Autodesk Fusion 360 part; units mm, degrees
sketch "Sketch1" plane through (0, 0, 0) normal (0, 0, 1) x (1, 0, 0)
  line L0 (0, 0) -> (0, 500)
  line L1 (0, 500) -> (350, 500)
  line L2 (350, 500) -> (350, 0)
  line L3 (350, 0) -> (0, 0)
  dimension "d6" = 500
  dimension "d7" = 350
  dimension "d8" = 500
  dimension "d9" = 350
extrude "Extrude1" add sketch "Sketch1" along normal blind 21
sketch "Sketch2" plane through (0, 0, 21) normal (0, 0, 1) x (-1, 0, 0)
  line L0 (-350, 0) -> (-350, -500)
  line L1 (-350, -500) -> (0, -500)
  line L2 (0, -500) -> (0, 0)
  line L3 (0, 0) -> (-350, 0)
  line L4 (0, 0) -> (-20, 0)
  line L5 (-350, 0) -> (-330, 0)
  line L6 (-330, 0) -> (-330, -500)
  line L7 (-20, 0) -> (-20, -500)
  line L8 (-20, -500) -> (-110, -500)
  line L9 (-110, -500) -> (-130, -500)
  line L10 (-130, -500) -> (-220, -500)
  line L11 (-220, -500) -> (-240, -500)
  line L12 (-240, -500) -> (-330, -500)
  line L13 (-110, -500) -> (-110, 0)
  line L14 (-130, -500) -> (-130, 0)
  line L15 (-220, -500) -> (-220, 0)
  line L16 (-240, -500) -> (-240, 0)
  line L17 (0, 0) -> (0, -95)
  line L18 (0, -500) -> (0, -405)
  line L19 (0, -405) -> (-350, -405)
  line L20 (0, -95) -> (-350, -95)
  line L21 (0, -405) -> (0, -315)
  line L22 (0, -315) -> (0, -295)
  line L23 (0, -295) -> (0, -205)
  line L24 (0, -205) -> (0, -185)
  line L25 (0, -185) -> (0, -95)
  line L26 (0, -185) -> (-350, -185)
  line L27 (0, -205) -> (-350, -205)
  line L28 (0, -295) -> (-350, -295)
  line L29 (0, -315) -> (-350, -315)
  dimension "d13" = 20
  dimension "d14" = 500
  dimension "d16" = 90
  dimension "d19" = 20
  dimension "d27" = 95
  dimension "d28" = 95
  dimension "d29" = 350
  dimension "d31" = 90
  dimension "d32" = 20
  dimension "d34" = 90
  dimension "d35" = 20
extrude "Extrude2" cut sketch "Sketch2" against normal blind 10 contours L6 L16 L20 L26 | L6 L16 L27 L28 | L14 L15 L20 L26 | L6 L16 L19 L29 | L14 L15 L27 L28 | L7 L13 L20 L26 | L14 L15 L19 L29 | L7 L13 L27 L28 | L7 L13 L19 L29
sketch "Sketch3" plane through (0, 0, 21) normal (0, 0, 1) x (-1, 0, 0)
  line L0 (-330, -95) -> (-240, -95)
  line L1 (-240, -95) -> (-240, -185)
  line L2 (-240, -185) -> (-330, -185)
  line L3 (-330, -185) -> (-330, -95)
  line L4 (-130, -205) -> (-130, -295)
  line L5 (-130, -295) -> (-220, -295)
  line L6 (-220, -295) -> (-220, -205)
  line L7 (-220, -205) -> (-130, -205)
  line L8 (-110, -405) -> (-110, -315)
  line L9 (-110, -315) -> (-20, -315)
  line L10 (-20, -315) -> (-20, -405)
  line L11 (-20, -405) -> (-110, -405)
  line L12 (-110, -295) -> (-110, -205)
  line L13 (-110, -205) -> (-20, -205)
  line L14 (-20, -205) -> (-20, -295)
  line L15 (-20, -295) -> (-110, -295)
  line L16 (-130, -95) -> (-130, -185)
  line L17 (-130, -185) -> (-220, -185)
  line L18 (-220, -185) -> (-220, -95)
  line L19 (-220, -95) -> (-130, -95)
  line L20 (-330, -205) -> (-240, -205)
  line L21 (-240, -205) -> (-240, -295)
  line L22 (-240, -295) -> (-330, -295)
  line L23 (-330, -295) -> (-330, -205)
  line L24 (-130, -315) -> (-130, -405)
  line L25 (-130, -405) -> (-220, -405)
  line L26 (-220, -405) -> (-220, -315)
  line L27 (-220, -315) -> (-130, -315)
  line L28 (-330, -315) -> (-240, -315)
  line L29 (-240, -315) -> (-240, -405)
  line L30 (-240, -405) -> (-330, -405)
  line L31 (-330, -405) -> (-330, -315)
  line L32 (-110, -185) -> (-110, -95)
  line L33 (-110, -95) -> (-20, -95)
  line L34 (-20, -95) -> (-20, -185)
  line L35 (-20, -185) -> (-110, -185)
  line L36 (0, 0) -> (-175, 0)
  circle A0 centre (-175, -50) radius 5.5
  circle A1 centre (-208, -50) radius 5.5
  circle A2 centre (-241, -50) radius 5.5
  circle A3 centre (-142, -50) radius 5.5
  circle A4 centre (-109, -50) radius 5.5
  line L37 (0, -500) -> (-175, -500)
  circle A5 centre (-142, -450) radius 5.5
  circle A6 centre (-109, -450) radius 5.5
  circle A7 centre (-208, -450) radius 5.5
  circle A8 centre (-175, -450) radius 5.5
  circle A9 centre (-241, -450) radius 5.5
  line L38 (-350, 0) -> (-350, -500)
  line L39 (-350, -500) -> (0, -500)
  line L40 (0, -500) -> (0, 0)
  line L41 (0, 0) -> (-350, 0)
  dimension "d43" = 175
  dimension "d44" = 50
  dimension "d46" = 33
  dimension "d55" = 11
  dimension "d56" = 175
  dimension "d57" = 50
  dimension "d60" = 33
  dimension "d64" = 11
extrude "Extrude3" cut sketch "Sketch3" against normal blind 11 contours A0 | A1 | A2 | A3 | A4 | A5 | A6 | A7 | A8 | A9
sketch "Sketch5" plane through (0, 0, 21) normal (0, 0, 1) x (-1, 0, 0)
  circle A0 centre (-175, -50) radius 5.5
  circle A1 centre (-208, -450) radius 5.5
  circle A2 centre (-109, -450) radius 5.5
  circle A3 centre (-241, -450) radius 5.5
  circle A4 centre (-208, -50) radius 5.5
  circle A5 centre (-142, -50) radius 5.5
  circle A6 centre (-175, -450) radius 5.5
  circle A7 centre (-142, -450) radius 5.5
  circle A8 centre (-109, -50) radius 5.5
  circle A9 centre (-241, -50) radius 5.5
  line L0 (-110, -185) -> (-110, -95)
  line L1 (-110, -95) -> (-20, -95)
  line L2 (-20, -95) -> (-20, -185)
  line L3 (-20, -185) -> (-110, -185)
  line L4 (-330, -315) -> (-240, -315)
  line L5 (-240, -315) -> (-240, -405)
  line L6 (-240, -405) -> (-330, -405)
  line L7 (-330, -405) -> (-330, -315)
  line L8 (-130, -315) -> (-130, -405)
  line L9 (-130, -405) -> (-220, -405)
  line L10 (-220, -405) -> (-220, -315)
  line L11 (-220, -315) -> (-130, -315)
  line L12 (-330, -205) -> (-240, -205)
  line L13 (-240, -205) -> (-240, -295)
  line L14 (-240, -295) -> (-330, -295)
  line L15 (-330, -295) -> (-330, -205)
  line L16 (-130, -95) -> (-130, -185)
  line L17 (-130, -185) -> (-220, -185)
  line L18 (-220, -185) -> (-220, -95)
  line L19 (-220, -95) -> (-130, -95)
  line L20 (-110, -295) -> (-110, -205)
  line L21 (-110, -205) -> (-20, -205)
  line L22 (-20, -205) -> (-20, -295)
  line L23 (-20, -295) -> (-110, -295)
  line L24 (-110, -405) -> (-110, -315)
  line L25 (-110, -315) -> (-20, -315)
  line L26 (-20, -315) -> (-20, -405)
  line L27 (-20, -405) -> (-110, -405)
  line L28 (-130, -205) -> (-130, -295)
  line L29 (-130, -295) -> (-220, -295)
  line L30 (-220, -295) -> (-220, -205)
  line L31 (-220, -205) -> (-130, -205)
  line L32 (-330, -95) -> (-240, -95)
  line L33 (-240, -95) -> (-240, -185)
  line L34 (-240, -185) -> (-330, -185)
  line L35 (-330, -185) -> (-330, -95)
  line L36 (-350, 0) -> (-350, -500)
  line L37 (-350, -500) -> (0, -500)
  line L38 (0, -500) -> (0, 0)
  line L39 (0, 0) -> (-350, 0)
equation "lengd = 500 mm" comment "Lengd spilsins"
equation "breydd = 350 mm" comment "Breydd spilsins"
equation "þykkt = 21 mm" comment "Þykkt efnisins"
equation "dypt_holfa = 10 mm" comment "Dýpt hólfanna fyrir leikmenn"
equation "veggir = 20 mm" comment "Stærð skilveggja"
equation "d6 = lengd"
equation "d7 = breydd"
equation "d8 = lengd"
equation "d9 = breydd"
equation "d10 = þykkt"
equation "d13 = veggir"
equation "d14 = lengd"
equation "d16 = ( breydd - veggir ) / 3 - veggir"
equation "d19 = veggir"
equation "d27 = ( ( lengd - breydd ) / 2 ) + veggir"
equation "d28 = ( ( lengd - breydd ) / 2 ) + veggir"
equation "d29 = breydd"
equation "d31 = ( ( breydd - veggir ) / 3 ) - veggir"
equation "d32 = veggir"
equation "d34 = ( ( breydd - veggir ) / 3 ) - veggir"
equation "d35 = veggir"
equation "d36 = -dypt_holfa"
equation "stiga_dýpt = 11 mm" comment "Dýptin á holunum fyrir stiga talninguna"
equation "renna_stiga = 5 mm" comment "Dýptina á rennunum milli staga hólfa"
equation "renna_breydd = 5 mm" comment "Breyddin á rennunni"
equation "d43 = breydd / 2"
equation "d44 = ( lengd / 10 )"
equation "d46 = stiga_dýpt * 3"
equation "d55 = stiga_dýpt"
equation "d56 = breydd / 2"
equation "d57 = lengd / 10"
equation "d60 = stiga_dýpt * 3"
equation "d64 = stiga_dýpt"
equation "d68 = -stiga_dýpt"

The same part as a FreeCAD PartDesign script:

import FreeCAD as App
import Part
import Sketcher

V = App.Vector


def add_polygon(sketch, points):
    """Adds a closed chain of lines whose ends are joined by coincident constraints."""
    first, n = sketch.GeometryCount, len(points)
    for a, b in zip(points, points[1:] + points[:1]):
        sketch.addGeometry(Part.LineSegment(App.Vector(*a, 0), App.Vector(*b, 0)), False)
    for i in range(n):
        sketch.addConstraint(Sketcher.Constraint("Coincident", first + i, 2, first + (i + 1) % n, 1))

doc = App.newDocument("Part")
body = doc.addObject("PartDesign::Body", "Body")

# Sketch on XY plane
sketch1 = body.newObject("Sketcher::SketchObject", "Sketch")
sketch1.AttachmentSupport = (doc.getObject("XY_Plane"), [""])
sketch1.MapMode = "FlatFace"
add_polygon(sketch1, [(0, 500), (0, 0), (350, 0), (350, 500)])  # lines 0-3
sketch1.addConstraint([
    Sketcher.Constraint("Vertical", 0),
    Sketcher.Constraint("Horizontal", 1),
    Sketcher.Constraint("Vertical", 2),
    Sketcher.Constraint("Horizontal", 3),
    Sketcher.Constraint("Coincident", 0, 2, -1, 1),
    Sketcher.Constraint("DistanceX", 1, 1, 1, 2, 350.0),
    Sketcher.Constraint("DistanceY", 0, 2, 0, 1, 500.0),
])
pad1 = body.newObject("PartDesign::Pad", "Pad")
pad1.Profile = sketch1
pad1.Length = 21

# Sketch on XY plane
sketch2 = body.newObject("Sketcher::SketchObject", "Sketch001")
sketch2.AttachmentSupport = (doc.getObject("XY_Plane"), [""])
sketch2.MapMode = "FlatFace"
sketch2.AttachmentOffset = App.Placement(V(0, 0, 21), App.Rotation())
add_polygon(sketch2, [(240, 95), (330, 95), (330, 185), (240, 185)])  # lines 0-3
add_polygon(sketch2, [(240, 205), (330, 205), (330, 295), (240, 295)])  # lines 4-7
add_polygon(sketch2, [(130, 95), (220, 95), (220, 185), (130, 185)])  # lines 8-11
add_polygon(sketch2, [(240, 315), (330, 315), (330, 405), (240, 405)])  # lines 12-15
add_polygon(sketch2, [(130, 205), (220, 205), (220, 295), (130, 295)])  # lines 16-19
add_polygon(sketch2, [(20, 95), (110, 95), (110, 185), (20, 185)])  # lines 20-23
add_polygon(sketch2, [(130, 315), (220, 315), (220, 405), (130, 405)])  # lines 24-27
add_polygon(sketch2, [(20, 205), (110, 205), (110, 295), (20, 295)])  # lines 28-31
add_polygon(sketch2, [(20, 315), (110, 315), (110, 405), (20, 405)])  # lines 32-35
sketch2.addConstraint([
    Sketcher.Constraint("Horizontal", 0),
    Sketcher.Constraint("Vertical", 1),
    Sketcher.Constraint("Horizontal", 2),
    Sketcher.Constraint("Vertical", 3),
    Sketcher.Constraint("Horizontal", 4),
    Sketcher.Constraint("Vertical", 5),
    Sketcher.Constraint("Horizontal", 6),
    Sketcher.Constraint("Vertical", 7),
    Sketcher.Constraint("Horizontal", 8),
    Sketcher.Constraint("Vertical", 9),
    Sketcher.Constraint("Horizontal", 10),
    Sketcher.Constraint("Vertical", 11),
    Sketcher.Constraint("Horizontal", 12),
    Sketcher.Constraint("Vertical", 13),
    Sketcher.Constraint("Horizontal", 14),
    Sketcher.Constraint("Vertical", 15),
    Sketcher.Constraint("Horizontal", 16),
    Sketcher.Constraint("Vertical", 17),
    Sketcher.Constraint("Horizontal", 18),
    Sketcher.Constraint("Vertical", 19),
    Sketcher.Constraint("Horizontal", 20),
    Sketcher.Constraint("Vertical", 21),
    Sketcher.Constraint("Horizontal", 22),
    Sketcher.Constraint("Vertical", 23),
    Sketcher.Constraint("Horizontal", 24),
    Sketcher.Constraint("Vertical", 25),
    Sketcher.Constraint("Horizontal", 26),
    Sketcher.Constraint("Vertical", 27),
    Sketcher.Constraint("Horizontal", 28),
    Sketcher.Constraint("Vertical", 29),
    Sketcher.Constraint("Horizontal", 30),
    Sketcher.Constraint("Vertical", 31),
    Sketcher.Constraint("Horizontal", 32),
    Sketcher.Constraint("Vertical", 33),
    Sketcher.Constraint("Horizontal", 34),
    Sketcher.Constraint("Vertical", 35),
    Sketcher.Constraint("Horizontal", 3, 2, 8, 2),
    Sketcher.Constraint("Horizontal", 2, 2, 9, 2),
    Sketcher.Constraint("Horizontal", 7, 2, 16, 2),
    Sketcher.Constraint("Horizontal", 6, 2, 17, 2),
    Sketcher.Constraint("Horizontal", 11, 2, 20, 2),
    Sketcher.Constraint("Horizontal", 10, 2, 21, 2),
    Sketcher.Constraint("Horizontal", 15, 2, 24, 2),
    Sketcher.Constraint("Horizontal", 14, 2, 25, 2),
    Sketcher.Constraint("Horizontal", 19, 2, 28, 2),
    Sketcher.Constraint("Horizontal", 18, 2, 29, 2),
    Sketcher.Constraint("Horizontal", 27, 2, 32, 2),
    Sketcher.Constraint("Horizontal", 26, 2, 33, 2),
    Sketcher.Constraint("Vertical", 1, 2, 4, 2),
    Sketcher.Constraint("Vertical", 3, 2, 6, 2),
    Sketcher.Constraint("Vertical", 5, 2, 12, 2),
    Sketcher.Constraint("Vertical", 7, 2, 14, 2),
    Sketcher.Constraint("Vertical", 9, 2, 16, 2),
    Sketcher.Constraint("Vertical", 11, 2, 18, 2),
    Sketcher.Constraint("Vertical", 17, 2, 24, 2),
    Sketcher.Constraint("Vertical", 19, 2, 26, 2),
    Sketcher.Constraint("Vertical", 21, 2, 28, 2),
    Sketcher.Constraint("Vertical", 23, 2, 30, 2),
    Sketcher.Constraint("Vertical", 29, 2, 32, 2),
    Sketcher.Constraint("Vertical", 31, 2, 34, 2),
    Sketcher.Constraint("Equal", 6, 8),
    Sketcher.Constraint("Equal", 18, 20),
    Sketcher.Constraint("Equal", 34, 1),
    Sketcher.Constraint("Equal", 3, 5),
    Sketcher.Constraint("Equal", 11, 13),
    Sketcher.Constraint("DistanceX", 0, 1, 0, 2, 90.0),
    Sketcher.Constraint("DistanceY", -1, 1, 0, 2, 95.0),
    Sketcher.Constraint("DistanceX", -1, 1, 22, 2, 20.0),
    Sketcher.Constraint("DistanceY", 1, 2, 4, 2, 20.0),
    Sketcher.Constraint("DistanceX", 8, 2, 3, 2, 20.0),
    Sketcher.Constraint("DistanceY", 5, 2, 12, 2, 20.0),
    Sketcher.Constraint("DistanceX", 20, 2, 11, 2, 20.0),
])
pocket1 = body.newObject("PartDesign::Pocket", "Pocket")
pocket1.Profile = sketch2
pocket1.Length = 10

# Sketch on XY plane
sketch3 = body.newObject("Sketcher::SketchObject", "Sketch002")
sketch3.AttachmentSupport = (doc.getObject("XY_Plane"), [""])
sketch3.MapMode = "FlatFace"
sketch3.AttachmentOffset = App.Placement(V(0, 0, 21), App.Rotation())
sketch3.addGeometry([
    Part.Circle(V(175, 50, 0), V(0, 0, 1), 5.5),  # 0
    Part.Circle(V(208, 50, 0), V(0, 0, 1), 5.5),  # 1
    Part.Circle(V(241, 50, 0), V(0, 0, 1), 5.5),  # 2
    Part.Circle(V(142, 50, 0), V(0, 0, 1), 5.5),  # 3
    Part.Circle(V(109, 50, 0), V(0, 0, 1), 5.5),  # 4
    Part.Circle(V(142, 450, 0), V(0, 0, 1), 5.5),  # 5
    Part.Circle(V(109, 450, 0), V(0, 0, 1), 5.5),  # 6
    Part.Circle(V(208, 450, 0), V(0, 0, 1), 5.5),  # 7
    Part.Circle(V(175, 450, 0), V(0, 0, 1), 5.5),  # 8
    Part.Circle(V(241, 450, 0), V(0, 0, 1), 5.5),  # 9
], False)
sketch3.addConstraint([
    Sketcher.Constraint("Equal", 0, 1),
    Sketcher.Constraint("Equal", 1, 2),
    Sketcher.Constraint("Equal", 2, 3),
    Sketcher.Constraint("Equal", 3, 4),
    Sketcher.Constraint("Equal", 4, 5),
    Sketcher.Constraint("Equal", 5, 6),
    Sketcher.Constraint("Equal", 6, 7),
    Sketcher.Constraint("Equal", 7, 8),
    Sketcher.Constraint("Equal", 8, 9),
    Sketcher.Constraint("Horizontal", 0, 3, 1, 3),
    Sketcher.Constraint("Horizontal", 1, 3, 2, 3),
    Sketcher.Constraint("Horizontal", 2, 3, 3, 3),
    Sketcher.Constraint("Horizontal", 3, 3, 4, 3),
    Sketcher.Constraint("Horizontal", 5, 3, 6, 3),
    Sketcher.Constraint("Horizontal", 6, 3, 7, 3),
    Sketcher.Constraint("Horizontal", 7, 3, 8, 3),
    Sketcher.Constraint("Horizontal", 8, 3, 9, 3),
    Sketcher.Constraint("Vertical", 3, 3, 5, 3),
    Sketcher.Constraint("Vertical", 4, 3, 6, 3),
    Sketcher.Constraint("Vertical", 1, 3, 7, 3),
    Sketcher.Constraint("Vertical", 0, 3, 8, 3),
    Sketcher.Constraint("Vertical", 2, 3, 9, 3),
    Sketcher.Constraint("Diameter", 0, 11.0),
    Sketcher.Constraint("DistanceX", -1, 1, 0, 3, 175.0),
    Sketcher.Constraint("DistanceY", -1, 1, 0, 3, 50.0),
    Sketcher.Constraint("DistanceX", 0, 3, 1, 3, 33.0),
    Sketcher.Constraint("DistanceX", 1, 3, 2, 3, 33.0),
    Sketcher.Constraint("DistanceX", 3, 3, 0, 3, 33.0),
    Sketcher.Constraint("DistanceX", 4, 3, 3, 3, 33.0),
    Sketcher.Constraint("DistanceY", -1, 1, 5, 3, 450.0),
])
pocket2 = body.newObject("PartDesign::Pocket", "Pocket001")
pocket2.Profile = sketch3
pocket2.Length = 11

doc.recompute()
